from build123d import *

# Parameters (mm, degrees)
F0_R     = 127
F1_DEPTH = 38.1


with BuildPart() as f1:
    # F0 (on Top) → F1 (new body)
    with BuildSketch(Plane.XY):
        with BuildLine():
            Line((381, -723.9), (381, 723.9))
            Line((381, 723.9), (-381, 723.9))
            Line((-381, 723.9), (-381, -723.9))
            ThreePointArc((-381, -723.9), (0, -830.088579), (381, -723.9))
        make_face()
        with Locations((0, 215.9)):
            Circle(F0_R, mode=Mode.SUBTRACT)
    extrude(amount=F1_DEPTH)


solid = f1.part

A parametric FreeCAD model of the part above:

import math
import FreeCAD as App
import Part
import Sketcher

V = App.Vector
Q = App.Units.Quantity

doc = App.newDocument("Part")
params = doc.addObject("Spreadsheet::Sheet", "Params")
for row, (alias, value) in enumerate([
    ("sketch1_diameter", "10 in"),
    ("sketch1_radius", "28.9999999 in"),
    ("sketch1_width", "30 in"),
    ("sketch1_height", "57 in"),
    ("pad1_length", "1.5 in"),
], start=1):
    params.set(f"A{row}", alias)
    params.set(f"B{row}", "=" + value)
    params.setAlias(f"B{row}", alias)

body = doc.addObject("PartDesign::Body", "Body")

sketch1 = body.newObject("Sketcher::SketchObject", "Sketch")
sketch1.AttachmentSupport = (doc.getObject("XY_Plane"), [""])
sketch1.MapMode = "FlatFace"
sketch1.addGeometry([
    Part.LineSegment(V(381, -724, 0), V(381, 724, 0)),
    Part.LineSegment(V(381, 724, 0), V(-381, 724, 0)),
    Part.LineSegment(V(-381, 724, 0), V(-381, -724, 0)),
    Part.ArcOfCircle(Part.Circle(V(0, -93, 0), V(0, 0, 1), 737), math.radians(-121), math.radians(-59)),
    Part.Circle(V(0, 216, 0), V(0, 0, 1), 127),
], False)
sketch1.addConstraint([
    Sketcher.Constraint("Coincident", 0, 2, 1, 1),
    Sketcher.Constraint("Coincident", 1, 2, 2, 1),
    Sketcher.Constraint("Coincident", 2, 2, 3, 1),
    Sketcher.Constraint("Coincident", 3, 2, 0, 1),
    Sketcher.Constraint("Vertical", 0),
    Sketcher.Constraint("Horizontal", 1),
    Sketcher.Constraint("Vertical", 2),
    Sketcher.Constraint("Symmetric", 0, 2, 2, 2, -1, 1),
    Sketcher.Constraint("PointOnObject", 3, 3, -2),
    Sketcher.Constraint("PointOnObject", 4, 3, -2),
    Sketcher.Constraint("Diameter", 4, Q("10 in")),
    Sketcher.Constraint("Radius", 3, Q("28.9999999 in")),
    Sketcher.Constraint("DistanceX", 1, 2, 1, 1, Q("30 in")),
    Sketcher.Constraint("DistanceY", 0, 1, 0, 2, Q("57 in")),
    Sketcher.Constraint("DistanceY", 4, 3, 0, 2, Q("20 in")),
])
sketch1.setExpression("Constraints[10]", "Params.sketch1_diameter")
sketch1.setExpression("Constraints[11]", "Params.sketch1_radius")
sketch1.setExpression("Constraints[12]", "Params.sketch1_width")
sketch1.setExpression("Constraints[13]", "Params.sketch1_height")
pad1 = body.newObject("PartDesign::Pad", "Pad")
pad1.Profile = sketch1
pad1.setExpression("Length", "Params.pad1_length")

doc.recompute()
